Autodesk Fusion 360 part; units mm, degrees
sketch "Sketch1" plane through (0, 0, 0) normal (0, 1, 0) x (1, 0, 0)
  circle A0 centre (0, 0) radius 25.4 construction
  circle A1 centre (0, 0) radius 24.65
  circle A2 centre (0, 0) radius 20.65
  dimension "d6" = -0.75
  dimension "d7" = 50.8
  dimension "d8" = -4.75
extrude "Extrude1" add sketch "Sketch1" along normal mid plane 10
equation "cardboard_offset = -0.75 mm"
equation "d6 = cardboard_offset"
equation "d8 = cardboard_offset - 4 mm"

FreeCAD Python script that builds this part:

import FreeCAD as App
import Part
import Sketcher

V = App.Vector
Q = App.Units.Quantity

doc = App.newDocument("Part")
body = doc.addObject("PartDesign::Body", "Body")

# Sketch on XZ plane
sketch1 = body.newObject("Sketcher::SketchObject", "Sketch")
sketch1.AttachmentSupport = (doc.getObject("XZ_Plane"), [""])
sketch1.MapMode = "FlatFace"
sketch1.addGeometry(Part.Circle(V(0, 0, 0), V(0, 0, 1), 25), False)
sketch1.addGeometry(Part.Circle(V(0, 0, 0), V(0, 0, 1), 21), False)
sketch1.addConstraint(Sketcher.Constraint("Coincident", 0, 3, -1, 1))
sketch1.addConstraint(Sketcher.Constraint("Coincident", 1, 3, -1, 1))
sketch1.addConstraint(Sketcher.Constraint("Diameter", 0, Q("49.3 mm")))
sketch1.addConstraint(Sketcher.Constraint("Diameter", 1, Q("41.3 mm")))
pad1 = body.newObject("PartDesign::Pad", "Pad")
pad1.Profile = sketch1
pad1.Length = 10
pad1.Midplane = True

doc.recompute()
